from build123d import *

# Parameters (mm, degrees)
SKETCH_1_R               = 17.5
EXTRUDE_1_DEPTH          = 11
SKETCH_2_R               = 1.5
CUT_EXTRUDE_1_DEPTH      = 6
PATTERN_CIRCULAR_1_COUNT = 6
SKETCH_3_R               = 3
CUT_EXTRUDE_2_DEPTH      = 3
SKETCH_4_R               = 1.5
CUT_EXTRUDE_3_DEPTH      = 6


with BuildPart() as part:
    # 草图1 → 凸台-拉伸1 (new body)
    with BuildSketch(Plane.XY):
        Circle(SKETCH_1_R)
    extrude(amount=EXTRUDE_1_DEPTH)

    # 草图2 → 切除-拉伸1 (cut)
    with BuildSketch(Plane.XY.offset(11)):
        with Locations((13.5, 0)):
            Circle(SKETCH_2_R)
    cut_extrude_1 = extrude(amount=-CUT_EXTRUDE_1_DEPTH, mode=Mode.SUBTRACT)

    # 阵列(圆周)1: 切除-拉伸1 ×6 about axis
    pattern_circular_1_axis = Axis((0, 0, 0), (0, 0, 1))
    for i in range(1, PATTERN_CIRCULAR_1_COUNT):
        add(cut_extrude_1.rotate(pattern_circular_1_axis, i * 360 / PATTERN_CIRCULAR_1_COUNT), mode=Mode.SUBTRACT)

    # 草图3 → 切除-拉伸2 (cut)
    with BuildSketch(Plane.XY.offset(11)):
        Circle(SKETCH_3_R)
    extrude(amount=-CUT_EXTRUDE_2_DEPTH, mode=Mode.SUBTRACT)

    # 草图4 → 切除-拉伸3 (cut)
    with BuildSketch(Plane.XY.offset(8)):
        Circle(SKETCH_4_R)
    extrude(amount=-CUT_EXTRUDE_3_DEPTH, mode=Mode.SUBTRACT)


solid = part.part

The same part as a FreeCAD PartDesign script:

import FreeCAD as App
import Part
import Sketcher
from FreeCAD import Vector
Q = App.Units.Quantity

doc = App.newDocument("Part")
body = doc.addObject("PartDesign::Body", "Body")

# Sketch on XY plane
sketch1 = doc.addObject("Sketcher::SketchObject", "Sketch")
body.addObject(sketch1)
sketch1.AttachmentSupport = (doc.XY_Plane, [""])
sketch1.MapMode = "FlatFace"
sketch1.addGeometry(Part.Circle(Vector(0, 0, 0), Vector(0, 0, 1), 18), False)
sketch1.addConstraint([
    Sketcher.Constraint("Coincident", 0, 3, -1, 1),
    Sketcher.Constraint("Diameter", 0, Q("35 mm")),
])
pad1 = doc.addObject("PartDesign::Pad", "Pad")
body.addObject(pad1)
pad1.Profile = sketch1
pad1.Length = 11

# Sketch on XY plane
sketch2 = doc.addObject("Sketcher::SketchObject", "Sketch001")
body.addObject(sketch2)
sketch2.AttachmentSupport = (doc.XY_Plane, [""])
sketch2.MapMode = "FlatFace"
sketch2.AttachmentOffset = App.Placement(Vector(0, 0, 11), App.Rotation())
sketch2.addGeometry(Part.Circle(Vector(13.5, 0, 0), Vector(0, 0, 1), 1.5), False)
sketch2.addConstraint([
    Sketcher.Constraint("PointOnObject", 0, 3, -1),
    Sketcher.Constraint("Diameter", 0, Q("3 mm")),
    Sketcher.Constraint("DistanceX", -1, 1, 0, 3, Q("13.5 mm")),
])
pocket1 = doc.addObject("PartDesign::Pocket", "Pocket")
body.addObject(pocket1)
pocket1.Profile = sketch2
pocket1.Length = 6
doc.recompute()

polarpattern = doc.addObject("PartDesign::PolarPattern", "PolarPattern")
body.addObject(polarpattern)
polarpattern.Originals = [pocket1]
polarpattern.Axis = (doc.Z_Axis, [""])
polarpattern.Angle = 360
polarpattern.Occurrences = 6
body.Tip = polarpattern

# Sketch on XY plane
sketch3 = doc.addObject("Sketcher::SketchObject", "Sketch002")
body.addObject(sketch3)
sketch3.AttachmentSupport = (doc.XY_Plane, [""])
sketch3.MapMode = "FlatFace"
sketch3.AttachmentOffset = App.Placement(Vector(0, 0, 11), App.Rotation())
sketch3.addGeometry(Part.Circle(Vector(0, 0, 0), Vector(0, 0, 1), 3), False)
sketch3.addConstraint([
    Sketcher.Constraint("Coincident", 0, 3, -1, 1),
    Sketcher.Constraint("Diameter", 0, Q("6 mm")),
])
pocket2 = doc.addObject("PartDesign::Pocket", "Pocket001")
body.addObject(pocket2)
pocket2.Profile = sketch3
pocket2.Length = 3

# Sketch on XY plane
sketch4 = doc.addObject("Sketcher::SketchObject", "Sketch003")
body.addObject(sketch4)
sketch4.AttachmentSupport = (doc.XY_Plane, [""])
sketch4.MapMode = "FlatFace"
sketch4.AttachmentOffset = App.Placement(Vector(0, 0, 8), App.Rotation())
sketch4.addGeometry(Part.Circle(Vector(0, 0, 0), Vector(0, 0, 1), 1.5), False)
sketch4.addConstraint([
    Sketcher.Constraint("Coincident", 0, 3, -1, 1),
    Sketcher.Constraint("Diameter", 0, Q("3 mm")),
])
pocket3 = doc.addObject("PartDesign::Pocket", "Pocket002")
body.addObject(pocket3)
pocket3.Profile = sketch4
pocket3.Length = 6

doc.recompute()
